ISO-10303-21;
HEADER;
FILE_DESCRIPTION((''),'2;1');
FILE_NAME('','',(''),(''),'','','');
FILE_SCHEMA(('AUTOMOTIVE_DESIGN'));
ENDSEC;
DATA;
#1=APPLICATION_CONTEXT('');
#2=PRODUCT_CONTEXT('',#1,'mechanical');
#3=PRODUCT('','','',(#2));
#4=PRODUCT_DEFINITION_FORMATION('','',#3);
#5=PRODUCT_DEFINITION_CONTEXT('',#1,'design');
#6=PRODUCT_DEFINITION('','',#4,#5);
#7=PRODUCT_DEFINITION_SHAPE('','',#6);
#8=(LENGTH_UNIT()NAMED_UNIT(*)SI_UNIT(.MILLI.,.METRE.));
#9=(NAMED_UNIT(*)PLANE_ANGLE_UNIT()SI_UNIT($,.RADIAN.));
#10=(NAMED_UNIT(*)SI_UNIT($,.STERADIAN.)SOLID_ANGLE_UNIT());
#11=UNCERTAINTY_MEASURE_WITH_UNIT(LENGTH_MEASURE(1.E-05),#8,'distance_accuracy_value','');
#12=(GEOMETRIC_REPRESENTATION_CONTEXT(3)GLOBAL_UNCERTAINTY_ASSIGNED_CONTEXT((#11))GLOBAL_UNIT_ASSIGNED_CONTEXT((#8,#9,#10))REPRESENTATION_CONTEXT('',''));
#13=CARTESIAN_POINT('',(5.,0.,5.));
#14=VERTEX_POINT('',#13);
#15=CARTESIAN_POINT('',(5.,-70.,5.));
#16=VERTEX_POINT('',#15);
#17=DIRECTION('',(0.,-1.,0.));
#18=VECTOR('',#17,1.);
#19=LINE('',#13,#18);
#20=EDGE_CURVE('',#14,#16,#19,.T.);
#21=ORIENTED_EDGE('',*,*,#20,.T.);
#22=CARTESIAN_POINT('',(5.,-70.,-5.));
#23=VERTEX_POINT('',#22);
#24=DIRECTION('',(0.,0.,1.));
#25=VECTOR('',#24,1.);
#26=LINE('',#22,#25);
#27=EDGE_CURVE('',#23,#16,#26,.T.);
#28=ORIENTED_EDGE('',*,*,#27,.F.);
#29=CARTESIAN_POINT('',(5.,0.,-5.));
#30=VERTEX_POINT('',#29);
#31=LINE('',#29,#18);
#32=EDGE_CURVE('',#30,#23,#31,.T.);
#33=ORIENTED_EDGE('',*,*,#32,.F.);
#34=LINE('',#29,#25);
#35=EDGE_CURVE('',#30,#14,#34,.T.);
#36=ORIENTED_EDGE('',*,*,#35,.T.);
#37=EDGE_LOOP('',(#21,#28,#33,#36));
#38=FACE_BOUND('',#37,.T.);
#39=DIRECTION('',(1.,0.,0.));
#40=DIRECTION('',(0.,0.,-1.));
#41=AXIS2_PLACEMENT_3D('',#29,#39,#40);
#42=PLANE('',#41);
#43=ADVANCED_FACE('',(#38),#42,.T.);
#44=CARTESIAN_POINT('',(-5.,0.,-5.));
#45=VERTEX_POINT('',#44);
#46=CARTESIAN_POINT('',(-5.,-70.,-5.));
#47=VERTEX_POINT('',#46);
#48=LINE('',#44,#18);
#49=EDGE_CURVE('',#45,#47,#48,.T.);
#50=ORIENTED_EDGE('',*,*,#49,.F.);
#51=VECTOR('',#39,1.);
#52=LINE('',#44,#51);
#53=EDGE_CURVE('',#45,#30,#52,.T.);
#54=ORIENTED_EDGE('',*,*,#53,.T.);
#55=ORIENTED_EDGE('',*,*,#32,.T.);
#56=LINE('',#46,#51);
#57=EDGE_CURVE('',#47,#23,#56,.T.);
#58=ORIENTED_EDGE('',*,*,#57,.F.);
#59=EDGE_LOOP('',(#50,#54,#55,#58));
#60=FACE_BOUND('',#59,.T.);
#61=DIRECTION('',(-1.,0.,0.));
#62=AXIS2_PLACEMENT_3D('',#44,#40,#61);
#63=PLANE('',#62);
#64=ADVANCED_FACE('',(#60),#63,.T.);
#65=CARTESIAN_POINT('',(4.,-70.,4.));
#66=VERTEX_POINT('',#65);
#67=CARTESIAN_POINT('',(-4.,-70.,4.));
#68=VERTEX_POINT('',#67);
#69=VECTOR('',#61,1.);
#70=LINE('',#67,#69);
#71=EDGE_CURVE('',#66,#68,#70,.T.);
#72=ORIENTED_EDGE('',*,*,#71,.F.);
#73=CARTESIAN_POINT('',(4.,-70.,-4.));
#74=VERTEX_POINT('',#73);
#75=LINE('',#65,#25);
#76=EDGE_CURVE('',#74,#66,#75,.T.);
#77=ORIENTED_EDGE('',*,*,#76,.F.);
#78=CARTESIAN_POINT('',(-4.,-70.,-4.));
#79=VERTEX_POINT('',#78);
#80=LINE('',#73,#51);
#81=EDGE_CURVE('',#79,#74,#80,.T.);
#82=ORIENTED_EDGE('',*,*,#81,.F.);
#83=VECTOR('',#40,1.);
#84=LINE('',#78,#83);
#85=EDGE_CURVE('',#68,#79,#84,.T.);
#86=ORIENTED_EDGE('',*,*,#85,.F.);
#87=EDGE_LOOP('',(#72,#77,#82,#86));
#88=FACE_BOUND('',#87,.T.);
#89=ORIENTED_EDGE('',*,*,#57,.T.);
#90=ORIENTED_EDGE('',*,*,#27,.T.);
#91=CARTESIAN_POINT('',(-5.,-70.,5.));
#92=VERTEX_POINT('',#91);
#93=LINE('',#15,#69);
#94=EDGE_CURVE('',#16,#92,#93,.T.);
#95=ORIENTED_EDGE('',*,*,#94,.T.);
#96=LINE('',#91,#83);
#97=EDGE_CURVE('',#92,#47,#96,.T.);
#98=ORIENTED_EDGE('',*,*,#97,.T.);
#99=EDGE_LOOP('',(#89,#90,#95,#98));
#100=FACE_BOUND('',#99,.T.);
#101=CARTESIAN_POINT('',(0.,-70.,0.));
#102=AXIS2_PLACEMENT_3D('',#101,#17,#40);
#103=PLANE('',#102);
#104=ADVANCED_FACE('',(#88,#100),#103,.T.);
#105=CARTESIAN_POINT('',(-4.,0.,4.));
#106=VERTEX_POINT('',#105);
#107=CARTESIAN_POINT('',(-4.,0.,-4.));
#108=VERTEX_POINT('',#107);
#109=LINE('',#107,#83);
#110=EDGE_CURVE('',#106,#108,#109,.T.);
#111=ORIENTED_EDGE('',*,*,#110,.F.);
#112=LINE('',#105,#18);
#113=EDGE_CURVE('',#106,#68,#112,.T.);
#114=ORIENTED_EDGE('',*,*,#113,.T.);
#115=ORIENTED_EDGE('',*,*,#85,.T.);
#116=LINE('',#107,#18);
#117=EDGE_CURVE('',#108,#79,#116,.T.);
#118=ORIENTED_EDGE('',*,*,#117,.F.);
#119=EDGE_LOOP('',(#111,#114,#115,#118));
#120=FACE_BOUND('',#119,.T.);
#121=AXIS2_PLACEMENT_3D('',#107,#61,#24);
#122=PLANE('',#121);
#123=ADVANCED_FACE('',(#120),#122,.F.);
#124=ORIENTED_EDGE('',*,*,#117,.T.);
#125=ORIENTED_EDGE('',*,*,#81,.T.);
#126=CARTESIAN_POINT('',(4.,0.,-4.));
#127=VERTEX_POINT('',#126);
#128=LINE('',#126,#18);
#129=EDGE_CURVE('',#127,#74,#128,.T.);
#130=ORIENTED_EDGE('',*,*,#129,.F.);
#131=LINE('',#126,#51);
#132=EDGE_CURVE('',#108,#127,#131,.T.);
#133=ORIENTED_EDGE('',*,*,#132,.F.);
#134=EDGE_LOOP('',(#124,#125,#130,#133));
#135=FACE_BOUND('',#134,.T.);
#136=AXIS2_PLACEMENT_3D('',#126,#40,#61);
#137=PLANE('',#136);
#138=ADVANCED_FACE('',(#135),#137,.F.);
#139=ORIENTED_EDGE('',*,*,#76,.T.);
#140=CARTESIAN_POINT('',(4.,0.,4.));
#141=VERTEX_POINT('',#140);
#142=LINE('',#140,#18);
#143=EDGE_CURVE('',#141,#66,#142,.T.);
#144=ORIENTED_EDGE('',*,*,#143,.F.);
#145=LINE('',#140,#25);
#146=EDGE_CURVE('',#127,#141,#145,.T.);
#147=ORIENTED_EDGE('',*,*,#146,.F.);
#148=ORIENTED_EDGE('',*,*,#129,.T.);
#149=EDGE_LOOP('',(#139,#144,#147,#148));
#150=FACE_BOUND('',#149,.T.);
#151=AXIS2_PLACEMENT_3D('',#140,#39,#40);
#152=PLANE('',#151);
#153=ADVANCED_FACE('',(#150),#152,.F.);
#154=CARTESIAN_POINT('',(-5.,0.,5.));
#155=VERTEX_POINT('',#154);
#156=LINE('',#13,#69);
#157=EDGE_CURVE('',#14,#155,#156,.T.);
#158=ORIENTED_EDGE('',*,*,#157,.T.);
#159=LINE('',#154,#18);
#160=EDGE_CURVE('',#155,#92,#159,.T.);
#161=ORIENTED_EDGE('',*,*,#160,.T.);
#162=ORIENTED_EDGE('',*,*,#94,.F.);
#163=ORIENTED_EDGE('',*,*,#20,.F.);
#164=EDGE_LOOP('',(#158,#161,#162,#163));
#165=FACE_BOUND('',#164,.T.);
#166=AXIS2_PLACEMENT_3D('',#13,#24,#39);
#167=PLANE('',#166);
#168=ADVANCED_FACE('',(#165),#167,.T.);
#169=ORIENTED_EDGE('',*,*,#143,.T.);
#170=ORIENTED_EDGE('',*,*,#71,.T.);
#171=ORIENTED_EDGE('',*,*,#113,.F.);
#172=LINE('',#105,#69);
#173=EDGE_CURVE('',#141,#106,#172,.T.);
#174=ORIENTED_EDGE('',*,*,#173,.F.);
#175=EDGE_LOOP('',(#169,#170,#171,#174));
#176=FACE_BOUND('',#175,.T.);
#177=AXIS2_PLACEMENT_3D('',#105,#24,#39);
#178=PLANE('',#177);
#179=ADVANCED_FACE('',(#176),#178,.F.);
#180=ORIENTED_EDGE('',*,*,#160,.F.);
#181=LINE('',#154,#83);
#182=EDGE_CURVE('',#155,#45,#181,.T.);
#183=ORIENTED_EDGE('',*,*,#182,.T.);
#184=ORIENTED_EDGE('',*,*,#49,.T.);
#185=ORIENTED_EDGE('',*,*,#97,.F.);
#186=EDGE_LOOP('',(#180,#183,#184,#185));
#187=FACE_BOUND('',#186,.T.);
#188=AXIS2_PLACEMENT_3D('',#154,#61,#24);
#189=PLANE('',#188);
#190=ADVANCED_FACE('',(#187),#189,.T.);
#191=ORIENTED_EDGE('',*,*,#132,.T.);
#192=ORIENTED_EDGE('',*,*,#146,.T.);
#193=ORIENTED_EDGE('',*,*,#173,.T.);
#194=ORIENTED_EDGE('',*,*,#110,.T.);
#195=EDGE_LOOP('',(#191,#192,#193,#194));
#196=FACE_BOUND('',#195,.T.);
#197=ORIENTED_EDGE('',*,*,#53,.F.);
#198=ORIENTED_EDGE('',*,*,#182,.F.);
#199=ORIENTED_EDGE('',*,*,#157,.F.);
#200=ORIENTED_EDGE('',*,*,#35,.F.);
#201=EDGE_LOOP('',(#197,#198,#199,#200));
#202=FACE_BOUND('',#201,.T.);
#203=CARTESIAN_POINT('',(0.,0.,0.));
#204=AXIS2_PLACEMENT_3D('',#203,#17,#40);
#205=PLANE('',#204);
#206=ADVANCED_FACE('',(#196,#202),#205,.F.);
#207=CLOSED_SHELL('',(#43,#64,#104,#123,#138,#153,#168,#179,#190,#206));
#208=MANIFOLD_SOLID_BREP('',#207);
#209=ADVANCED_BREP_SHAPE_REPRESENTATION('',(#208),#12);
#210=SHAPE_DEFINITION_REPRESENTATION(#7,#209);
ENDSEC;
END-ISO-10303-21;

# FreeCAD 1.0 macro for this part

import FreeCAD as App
import Part
import Sketcher


def add_polygon(sketch, points):
    """Adds a closed chain of lines whose ends are joined by coincident constraints."""
    first, n = sketch.GeometryCount, len(points)
    for a, b in zip(points, points[1:] + points[:1]):
        sketch.addGeometry(Part.LineSegment(App.Vector(*a, 0), App.Vector(*b, 0)), False)
    for i in range(n):
        sketch.addConstraint(Sketcher.Constraint("Coincident", first + i, 2, first + (i + 1) % n, 1))

doc = App.newDocument("Part")
body = doc.addObject("PartDesign::Body", "Body")

# Sketch on XZ plane
sketch1 = doc.addObject("Sketcher::SketchObject", "Sketch")
body.addObject(sketch1)
sketch1.AttachmentSupport = (doc.XZ_Plane, [""])
sketch1.MapMode = "FlatFace"
sketch1.AttachmentOffset = App.Placement(App.Vector(0, 0, 70), App.Rotation())
add_polygon(sketch1, [(-5, 5), (-5, -5), (5, -5), (5, 5)])  # lines 0-3
add_polygon(sketch1, [(4, -4), (-4, -4), (-4, 4), (4, 4)])  # lines 4-7
sketch1.addConstraint(Sketcher.Constraint("Vertical", 0))
sketch1.addConstraint(Sketcher.Constraint("Horizontal", 1))
sketch1.addConstraint(Sketcher.Constraint("Vertical", 2))
sketch1.addConstraint(Sketcher.Constraint("Horizontal", 3))
sketch1.addConstraint(Sketcher.Constraint("Horizontal", 4))
sketch1.addConstraint(Sketcher.Constraint("Vertical", 5))
sketch1.addConstraint(Sketcher.Constraint("Horizontal", 6))
sketch1.addConstraint(Sketcher.Constraint("Vertical", 7))
sketch1.addConstraint(Sketcher.Constraint("Symmetric", 0, 2, 2, 2, -1, 1))
sketch1.addConstraint(Sketcher.Constraint("Symmetric", 4, 2, 6, 2, -1, 1))
sketch1.addConstraint(Sketcher.Constraint("Equal", 3, 0))
sketch1.addConstraint(Sketcher.Constraint("Equal", 6, 5))
sketch1.addConstraint(Sketcher.Constraint("DistanceX", 1, 1, 1, 2, 10.0))
sketch1.addConstraint(Sketcher.Constraint("DistanceX", 4, 2, 4, 1, 8.0))
pad1 = doc.addObject("PartDesign::Pad", "Pad")
body.addObject(pad1)
pad1.Profile = sketch1
pad1.Length = 70
pad1.Reversed = True

doc.recompute()
